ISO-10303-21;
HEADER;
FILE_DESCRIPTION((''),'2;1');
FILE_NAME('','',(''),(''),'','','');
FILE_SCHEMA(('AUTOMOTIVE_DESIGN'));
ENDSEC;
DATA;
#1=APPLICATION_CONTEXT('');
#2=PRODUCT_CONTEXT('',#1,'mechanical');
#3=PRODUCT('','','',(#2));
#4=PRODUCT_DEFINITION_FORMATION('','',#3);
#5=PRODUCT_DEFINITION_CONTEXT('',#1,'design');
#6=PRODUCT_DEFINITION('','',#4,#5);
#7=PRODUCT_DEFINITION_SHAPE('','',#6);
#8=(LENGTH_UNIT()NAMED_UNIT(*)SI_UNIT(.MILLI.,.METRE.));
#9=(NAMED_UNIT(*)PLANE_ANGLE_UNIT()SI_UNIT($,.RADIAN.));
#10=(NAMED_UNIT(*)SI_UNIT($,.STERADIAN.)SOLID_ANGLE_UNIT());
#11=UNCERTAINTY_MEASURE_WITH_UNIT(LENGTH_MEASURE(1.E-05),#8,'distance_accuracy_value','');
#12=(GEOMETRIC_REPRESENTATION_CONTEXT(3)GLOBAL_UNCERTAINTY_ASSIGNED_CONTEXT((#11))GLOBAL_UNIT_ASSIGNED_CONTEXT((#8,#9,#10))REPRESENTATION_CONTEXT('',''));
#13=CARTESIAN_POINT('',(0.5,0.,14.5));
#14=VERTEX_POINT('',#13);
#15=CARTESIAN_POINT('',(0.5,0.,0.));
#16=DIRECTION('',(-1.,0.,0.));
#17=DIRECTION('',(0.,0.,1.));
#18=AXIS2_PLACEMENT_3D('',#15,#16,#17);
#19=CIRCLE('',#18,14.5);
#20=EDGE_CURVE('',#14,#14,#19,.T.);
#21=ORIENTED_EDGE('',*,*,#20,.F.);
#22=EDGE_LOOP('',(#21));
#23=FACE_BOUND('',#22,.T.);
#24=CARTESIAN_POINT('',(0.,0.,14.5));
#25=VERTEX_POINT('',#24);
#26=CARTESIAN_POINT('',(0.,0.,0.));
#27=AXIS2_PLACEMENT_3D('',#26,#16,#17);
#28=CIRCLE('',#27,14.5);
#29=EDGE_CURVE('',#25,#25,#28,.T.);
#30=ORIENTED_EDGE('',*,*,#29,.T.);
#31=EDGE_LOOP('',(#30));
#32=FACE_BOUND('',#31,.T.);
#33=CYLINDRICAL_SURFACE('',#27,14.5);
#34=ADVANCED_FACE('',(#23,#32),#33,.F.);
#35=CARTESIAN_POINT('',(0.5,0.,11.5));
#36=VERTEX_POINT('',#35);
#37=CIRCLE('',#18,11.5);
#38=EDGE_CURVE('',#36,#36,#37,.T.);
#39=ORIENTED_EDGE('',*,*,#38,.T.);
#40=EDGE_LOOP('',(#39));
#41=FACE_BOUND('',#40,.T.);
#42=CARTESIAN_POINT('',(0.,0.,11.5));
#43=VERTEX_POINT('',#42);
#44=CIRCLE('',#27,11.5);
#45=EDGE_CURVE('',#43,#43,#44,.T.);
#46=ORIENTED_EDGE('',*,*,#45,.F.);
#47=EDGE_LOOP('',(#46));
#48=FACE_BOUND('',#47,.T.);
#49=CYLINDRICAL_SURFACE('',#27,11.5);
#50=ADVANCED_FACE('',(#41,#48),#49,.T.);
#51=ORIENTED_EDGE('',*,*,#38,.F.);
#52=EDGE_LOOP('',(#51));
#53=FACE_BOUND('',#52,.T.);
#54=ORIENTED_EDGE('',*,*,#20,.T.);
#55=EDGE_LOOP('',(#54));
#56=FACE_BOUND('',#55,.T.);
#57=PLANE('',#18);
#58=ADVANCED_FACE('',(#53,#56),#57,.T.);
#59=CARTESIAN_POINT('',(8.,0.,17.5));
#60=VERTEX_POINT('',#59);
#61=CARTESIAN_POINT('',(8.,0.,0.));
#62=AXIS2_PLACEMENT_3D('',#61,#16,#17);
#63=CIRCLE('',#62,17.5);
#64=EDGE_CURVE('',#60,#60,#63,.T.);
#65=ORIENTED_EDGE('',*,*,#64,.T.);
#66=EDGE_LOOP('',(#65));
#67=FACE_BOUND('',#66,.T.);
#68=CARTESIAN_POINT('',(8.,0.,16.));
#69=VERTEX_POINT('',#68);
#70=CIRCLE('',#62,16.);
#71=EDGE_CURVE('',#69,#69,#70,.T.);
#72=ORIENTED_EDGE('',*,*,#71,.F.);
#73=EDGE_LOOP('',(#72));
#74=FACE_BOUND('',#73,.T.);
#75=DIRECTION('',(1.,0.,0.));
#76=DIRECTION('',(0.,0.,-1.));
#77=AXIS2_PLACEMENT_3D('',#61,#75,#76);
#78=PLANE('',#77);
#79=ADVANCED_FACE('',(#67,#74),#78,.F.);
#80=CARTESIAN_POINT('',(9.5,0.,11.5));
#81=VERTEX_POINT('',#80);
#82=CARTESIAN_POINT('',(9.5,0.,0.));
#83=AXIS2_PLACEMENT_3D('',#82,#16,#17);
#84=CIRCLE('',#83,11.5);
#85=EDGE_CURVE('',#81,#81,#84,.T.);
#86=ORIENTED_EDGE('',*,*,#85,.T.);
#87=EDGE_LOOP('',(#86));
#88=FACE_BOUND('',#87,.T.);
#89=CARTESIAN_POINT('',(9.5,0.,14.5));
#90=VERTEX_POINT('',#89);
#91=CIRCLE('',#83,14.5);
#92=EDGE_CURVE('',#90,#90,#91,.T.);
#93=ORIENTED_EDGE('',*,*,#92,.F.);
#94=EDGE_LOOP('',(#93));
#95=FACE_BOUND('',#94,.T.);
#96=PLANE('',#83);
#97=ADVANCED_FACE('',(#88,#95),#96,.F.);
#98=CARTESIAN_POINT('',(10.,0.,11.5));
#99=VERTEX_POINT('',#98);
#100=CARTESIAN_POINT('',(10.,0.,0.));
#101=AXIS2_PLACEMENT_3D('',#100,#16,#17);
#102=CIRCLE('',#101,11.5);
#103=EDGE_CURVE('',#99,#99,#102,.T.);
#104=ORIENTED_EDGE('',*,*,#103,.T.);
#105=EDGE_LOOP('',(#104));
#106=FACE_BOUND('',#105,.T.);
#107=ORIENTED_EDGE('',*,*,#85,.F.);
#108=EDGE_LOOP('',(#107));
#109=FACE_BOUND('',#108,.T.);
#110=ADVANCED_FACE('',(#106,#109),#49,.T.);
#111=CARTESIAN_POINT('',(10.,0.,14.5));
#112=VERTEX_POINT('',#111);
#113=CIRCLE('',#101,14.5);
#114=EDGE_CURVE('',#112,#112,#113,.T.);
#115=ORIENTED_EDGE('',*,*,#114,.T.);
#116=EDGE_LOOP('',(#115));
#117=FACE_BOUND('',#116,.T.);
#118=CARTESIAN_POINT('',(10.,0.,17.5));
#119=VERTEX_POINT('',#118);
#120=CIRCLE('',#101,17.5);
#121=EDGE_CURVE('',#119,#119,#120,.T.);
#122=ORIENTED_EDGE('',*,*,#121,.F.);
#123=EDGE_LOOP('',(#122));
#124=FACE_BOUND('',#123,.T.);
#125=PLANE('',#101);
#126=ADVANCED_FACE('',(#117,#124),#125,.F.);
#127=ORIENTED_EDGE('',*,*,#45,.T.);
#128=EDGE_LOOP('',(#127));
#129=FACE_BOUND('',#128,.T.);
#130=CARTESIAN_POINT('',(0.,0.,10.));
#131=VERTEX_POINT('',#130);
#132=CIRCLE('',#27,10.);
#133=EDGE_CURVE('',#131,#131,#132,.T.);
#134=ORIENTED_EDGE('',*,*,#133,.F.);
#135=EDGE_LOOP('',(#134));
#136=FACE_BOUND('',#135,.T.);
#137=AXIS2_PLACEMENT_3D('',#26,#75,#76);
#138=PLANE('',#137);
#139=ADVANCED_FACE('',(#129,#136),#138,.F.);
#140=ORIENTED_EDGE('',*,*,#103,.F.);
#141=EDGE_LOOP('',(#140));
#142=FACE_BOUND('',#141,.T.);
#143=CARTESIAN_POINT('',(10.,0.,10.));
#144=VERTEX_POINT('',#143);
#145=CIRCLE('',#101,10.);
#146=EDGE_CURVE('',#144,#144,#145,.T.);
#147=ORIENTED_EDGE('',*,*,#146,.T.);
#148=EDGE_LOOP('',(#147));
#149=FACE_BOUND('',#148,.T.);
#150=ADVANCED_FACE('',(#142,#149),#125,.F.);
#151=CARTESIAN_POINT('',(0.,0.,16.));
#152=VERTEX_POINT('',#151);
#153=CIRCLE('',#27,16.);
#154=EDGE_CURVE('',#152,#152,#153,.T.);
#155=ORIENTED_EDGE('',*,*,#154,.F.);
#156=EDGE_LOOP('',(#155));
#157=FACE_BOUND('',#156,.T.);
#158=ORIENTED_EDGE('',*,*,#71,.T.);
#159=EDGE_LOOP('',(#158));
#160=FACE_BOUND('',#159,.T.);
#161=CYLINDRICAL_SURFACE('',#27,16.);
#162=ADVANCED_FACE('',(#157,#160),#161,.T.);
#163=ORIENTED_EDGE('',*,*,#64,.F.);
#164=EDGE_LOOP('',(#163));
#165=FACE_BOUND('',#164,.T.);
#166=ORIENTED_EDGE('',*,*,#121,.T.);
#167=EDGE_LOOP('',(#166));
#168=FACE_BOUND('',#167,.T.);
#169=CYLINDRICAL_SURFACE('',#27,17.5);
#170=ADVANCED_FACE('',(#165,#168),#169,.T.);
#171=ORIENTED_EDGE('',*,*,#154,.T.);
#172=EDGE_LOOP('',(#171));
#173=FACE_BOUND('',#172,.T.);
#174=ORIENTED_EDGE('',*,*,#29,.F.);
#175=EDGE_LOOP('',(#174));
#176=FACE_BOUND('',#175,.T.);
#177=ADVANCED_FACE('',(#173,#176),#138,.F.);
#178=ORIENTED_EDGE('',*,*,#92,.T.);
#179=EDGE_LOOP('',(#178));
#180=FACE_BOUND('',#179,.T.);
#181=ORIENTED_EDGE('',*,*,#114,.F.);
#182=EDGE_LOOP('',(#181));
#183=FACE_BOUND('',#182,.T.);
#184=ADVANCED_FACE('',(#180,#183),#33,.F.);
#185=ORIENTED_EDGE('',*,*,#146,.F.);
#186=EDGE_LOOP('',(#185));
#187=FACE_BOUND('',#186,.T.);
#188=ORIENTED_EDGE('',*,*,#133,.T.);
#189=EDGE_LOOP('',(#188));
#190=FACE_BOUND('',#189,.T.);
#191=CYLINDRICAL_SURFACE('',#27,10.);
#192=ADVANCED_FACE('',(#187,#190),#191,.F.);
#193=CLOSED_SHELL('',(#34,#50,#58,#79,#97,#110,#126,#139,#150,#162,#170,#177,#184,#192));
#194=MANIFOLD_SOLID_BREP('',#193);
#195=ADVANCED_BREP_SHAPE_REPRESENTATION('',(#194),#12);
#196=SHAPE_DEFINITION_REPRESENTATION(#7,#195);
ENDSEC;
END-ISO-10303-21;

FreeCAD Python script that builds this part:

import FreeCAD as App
import Part
import Sketcher


def add_polygon(sketch, points):
    """Adds a closed chain of lines whose ends are joined by coincident constraints."""
    first, n = sketch.GeometryCount, len(points)
    for a, b in zip(points, points[1:] + points[:1]):
        sketch.addGeometry(Part.LineSegment(App.Vector(*a, 0), App.Vector(*b, 0)), False)
    for i in range(n):
        sketch.addConstraint(Sketcher.Constraint("Coincident", first + i, 2, first + (i + 1) % n, 1))

doc = App.newDocument("Part")
body = doc.addObject("PartDesign::Body", "Body")

# Sketch on XZ plane
sketch1 = body.newObject("Sketcher::SketchObject", "Sketch")
sketch1.AttachmentSupport = (doc.getObject("XZ_Plane"), [""])
sketch1.MapMode = "FlatFace"
add_polygon(sketch1, [(0, -10), (10, -10), (10, -11.5), (9.5, -11.5), (9.5, -14.5), (10, -14.5), (10, -17.5), (8, -17.5), (8, -16), (0, -16), (0, -14.5), (0.5, -14.5), (0.5, -11.5), (0, -11.5)])  # lines 0-13
sketch1.addConstraint([
    Sketcher.Constraint("Horizontal", 0),
    Sketcher.Constraint("Vertical", 1),
    Sketcher.Constraint("Horizontal", 2),
    Sketcher.Constraint("Vertical", 3),
    Sketcher.Constraint("Horizontal", 4),
    Sketcher.Constraint("Vertical", 5),
    Sketcher.Constraint("Horizontal", 6),
    Sketcher.Constraint("Vertical", 7),
    Sketcher.Constraint("Horizontal", 8),
    Sketcher.Constraint("Vertical", 9),
    Sketcher.Constraint("Horizontal", 10),
    Sketcher.Constraint("Vertical", 11),
    Sketcher.Constraint("Horizontal", 12),
    Sketcher.Constraint("Vertical", 13),
    Sketcher.Constraint("PointOnObject", 8, 2, -2),
    Sketcher.Constraint("PointOnObject", 12, 2, -2),
    Sketcher.Constraint("Horizontal", 4, 2, 9, 2),
    Sketcher.Constraint("Horizontal", 2, 2, 11, 2),
    Sketcher.Constraint("Vertical", 1, 2, 4, 2),
    Sketcher.Constraint("Equal", 4, 10),
    Sketcher.Constraint("Equal", 3, 5),
    Sketcher.Constraint("Equal", 1, 7),
    Sketcher.Constraint("Equal", 7, 9),
    Sketcher.Constraint("DistanceX", 0, 1, 0, 2, 10.0),
    Sketcher.Constraint("DistanceX", 6, 2, 6, 1, 2.0),
    Sketcher.Constraint("DistanceY", 3, 2, 3, 1, 3.0),
    Sketcher.Constraint("DistanceX", 2, 2, 2, 1, 0.5),
    Sketcher.Constraint("DistanceY", 0, 2, -1, 1, 10.0),
])
revolution = body.newObject("PartDesign::Revolution", "Revolution")
revolution.Profile = sketch1
revolution.ReferenceAxis = (sketch1, ["H_Axis"])
revolution.Angle = 360

doc.recompute()
